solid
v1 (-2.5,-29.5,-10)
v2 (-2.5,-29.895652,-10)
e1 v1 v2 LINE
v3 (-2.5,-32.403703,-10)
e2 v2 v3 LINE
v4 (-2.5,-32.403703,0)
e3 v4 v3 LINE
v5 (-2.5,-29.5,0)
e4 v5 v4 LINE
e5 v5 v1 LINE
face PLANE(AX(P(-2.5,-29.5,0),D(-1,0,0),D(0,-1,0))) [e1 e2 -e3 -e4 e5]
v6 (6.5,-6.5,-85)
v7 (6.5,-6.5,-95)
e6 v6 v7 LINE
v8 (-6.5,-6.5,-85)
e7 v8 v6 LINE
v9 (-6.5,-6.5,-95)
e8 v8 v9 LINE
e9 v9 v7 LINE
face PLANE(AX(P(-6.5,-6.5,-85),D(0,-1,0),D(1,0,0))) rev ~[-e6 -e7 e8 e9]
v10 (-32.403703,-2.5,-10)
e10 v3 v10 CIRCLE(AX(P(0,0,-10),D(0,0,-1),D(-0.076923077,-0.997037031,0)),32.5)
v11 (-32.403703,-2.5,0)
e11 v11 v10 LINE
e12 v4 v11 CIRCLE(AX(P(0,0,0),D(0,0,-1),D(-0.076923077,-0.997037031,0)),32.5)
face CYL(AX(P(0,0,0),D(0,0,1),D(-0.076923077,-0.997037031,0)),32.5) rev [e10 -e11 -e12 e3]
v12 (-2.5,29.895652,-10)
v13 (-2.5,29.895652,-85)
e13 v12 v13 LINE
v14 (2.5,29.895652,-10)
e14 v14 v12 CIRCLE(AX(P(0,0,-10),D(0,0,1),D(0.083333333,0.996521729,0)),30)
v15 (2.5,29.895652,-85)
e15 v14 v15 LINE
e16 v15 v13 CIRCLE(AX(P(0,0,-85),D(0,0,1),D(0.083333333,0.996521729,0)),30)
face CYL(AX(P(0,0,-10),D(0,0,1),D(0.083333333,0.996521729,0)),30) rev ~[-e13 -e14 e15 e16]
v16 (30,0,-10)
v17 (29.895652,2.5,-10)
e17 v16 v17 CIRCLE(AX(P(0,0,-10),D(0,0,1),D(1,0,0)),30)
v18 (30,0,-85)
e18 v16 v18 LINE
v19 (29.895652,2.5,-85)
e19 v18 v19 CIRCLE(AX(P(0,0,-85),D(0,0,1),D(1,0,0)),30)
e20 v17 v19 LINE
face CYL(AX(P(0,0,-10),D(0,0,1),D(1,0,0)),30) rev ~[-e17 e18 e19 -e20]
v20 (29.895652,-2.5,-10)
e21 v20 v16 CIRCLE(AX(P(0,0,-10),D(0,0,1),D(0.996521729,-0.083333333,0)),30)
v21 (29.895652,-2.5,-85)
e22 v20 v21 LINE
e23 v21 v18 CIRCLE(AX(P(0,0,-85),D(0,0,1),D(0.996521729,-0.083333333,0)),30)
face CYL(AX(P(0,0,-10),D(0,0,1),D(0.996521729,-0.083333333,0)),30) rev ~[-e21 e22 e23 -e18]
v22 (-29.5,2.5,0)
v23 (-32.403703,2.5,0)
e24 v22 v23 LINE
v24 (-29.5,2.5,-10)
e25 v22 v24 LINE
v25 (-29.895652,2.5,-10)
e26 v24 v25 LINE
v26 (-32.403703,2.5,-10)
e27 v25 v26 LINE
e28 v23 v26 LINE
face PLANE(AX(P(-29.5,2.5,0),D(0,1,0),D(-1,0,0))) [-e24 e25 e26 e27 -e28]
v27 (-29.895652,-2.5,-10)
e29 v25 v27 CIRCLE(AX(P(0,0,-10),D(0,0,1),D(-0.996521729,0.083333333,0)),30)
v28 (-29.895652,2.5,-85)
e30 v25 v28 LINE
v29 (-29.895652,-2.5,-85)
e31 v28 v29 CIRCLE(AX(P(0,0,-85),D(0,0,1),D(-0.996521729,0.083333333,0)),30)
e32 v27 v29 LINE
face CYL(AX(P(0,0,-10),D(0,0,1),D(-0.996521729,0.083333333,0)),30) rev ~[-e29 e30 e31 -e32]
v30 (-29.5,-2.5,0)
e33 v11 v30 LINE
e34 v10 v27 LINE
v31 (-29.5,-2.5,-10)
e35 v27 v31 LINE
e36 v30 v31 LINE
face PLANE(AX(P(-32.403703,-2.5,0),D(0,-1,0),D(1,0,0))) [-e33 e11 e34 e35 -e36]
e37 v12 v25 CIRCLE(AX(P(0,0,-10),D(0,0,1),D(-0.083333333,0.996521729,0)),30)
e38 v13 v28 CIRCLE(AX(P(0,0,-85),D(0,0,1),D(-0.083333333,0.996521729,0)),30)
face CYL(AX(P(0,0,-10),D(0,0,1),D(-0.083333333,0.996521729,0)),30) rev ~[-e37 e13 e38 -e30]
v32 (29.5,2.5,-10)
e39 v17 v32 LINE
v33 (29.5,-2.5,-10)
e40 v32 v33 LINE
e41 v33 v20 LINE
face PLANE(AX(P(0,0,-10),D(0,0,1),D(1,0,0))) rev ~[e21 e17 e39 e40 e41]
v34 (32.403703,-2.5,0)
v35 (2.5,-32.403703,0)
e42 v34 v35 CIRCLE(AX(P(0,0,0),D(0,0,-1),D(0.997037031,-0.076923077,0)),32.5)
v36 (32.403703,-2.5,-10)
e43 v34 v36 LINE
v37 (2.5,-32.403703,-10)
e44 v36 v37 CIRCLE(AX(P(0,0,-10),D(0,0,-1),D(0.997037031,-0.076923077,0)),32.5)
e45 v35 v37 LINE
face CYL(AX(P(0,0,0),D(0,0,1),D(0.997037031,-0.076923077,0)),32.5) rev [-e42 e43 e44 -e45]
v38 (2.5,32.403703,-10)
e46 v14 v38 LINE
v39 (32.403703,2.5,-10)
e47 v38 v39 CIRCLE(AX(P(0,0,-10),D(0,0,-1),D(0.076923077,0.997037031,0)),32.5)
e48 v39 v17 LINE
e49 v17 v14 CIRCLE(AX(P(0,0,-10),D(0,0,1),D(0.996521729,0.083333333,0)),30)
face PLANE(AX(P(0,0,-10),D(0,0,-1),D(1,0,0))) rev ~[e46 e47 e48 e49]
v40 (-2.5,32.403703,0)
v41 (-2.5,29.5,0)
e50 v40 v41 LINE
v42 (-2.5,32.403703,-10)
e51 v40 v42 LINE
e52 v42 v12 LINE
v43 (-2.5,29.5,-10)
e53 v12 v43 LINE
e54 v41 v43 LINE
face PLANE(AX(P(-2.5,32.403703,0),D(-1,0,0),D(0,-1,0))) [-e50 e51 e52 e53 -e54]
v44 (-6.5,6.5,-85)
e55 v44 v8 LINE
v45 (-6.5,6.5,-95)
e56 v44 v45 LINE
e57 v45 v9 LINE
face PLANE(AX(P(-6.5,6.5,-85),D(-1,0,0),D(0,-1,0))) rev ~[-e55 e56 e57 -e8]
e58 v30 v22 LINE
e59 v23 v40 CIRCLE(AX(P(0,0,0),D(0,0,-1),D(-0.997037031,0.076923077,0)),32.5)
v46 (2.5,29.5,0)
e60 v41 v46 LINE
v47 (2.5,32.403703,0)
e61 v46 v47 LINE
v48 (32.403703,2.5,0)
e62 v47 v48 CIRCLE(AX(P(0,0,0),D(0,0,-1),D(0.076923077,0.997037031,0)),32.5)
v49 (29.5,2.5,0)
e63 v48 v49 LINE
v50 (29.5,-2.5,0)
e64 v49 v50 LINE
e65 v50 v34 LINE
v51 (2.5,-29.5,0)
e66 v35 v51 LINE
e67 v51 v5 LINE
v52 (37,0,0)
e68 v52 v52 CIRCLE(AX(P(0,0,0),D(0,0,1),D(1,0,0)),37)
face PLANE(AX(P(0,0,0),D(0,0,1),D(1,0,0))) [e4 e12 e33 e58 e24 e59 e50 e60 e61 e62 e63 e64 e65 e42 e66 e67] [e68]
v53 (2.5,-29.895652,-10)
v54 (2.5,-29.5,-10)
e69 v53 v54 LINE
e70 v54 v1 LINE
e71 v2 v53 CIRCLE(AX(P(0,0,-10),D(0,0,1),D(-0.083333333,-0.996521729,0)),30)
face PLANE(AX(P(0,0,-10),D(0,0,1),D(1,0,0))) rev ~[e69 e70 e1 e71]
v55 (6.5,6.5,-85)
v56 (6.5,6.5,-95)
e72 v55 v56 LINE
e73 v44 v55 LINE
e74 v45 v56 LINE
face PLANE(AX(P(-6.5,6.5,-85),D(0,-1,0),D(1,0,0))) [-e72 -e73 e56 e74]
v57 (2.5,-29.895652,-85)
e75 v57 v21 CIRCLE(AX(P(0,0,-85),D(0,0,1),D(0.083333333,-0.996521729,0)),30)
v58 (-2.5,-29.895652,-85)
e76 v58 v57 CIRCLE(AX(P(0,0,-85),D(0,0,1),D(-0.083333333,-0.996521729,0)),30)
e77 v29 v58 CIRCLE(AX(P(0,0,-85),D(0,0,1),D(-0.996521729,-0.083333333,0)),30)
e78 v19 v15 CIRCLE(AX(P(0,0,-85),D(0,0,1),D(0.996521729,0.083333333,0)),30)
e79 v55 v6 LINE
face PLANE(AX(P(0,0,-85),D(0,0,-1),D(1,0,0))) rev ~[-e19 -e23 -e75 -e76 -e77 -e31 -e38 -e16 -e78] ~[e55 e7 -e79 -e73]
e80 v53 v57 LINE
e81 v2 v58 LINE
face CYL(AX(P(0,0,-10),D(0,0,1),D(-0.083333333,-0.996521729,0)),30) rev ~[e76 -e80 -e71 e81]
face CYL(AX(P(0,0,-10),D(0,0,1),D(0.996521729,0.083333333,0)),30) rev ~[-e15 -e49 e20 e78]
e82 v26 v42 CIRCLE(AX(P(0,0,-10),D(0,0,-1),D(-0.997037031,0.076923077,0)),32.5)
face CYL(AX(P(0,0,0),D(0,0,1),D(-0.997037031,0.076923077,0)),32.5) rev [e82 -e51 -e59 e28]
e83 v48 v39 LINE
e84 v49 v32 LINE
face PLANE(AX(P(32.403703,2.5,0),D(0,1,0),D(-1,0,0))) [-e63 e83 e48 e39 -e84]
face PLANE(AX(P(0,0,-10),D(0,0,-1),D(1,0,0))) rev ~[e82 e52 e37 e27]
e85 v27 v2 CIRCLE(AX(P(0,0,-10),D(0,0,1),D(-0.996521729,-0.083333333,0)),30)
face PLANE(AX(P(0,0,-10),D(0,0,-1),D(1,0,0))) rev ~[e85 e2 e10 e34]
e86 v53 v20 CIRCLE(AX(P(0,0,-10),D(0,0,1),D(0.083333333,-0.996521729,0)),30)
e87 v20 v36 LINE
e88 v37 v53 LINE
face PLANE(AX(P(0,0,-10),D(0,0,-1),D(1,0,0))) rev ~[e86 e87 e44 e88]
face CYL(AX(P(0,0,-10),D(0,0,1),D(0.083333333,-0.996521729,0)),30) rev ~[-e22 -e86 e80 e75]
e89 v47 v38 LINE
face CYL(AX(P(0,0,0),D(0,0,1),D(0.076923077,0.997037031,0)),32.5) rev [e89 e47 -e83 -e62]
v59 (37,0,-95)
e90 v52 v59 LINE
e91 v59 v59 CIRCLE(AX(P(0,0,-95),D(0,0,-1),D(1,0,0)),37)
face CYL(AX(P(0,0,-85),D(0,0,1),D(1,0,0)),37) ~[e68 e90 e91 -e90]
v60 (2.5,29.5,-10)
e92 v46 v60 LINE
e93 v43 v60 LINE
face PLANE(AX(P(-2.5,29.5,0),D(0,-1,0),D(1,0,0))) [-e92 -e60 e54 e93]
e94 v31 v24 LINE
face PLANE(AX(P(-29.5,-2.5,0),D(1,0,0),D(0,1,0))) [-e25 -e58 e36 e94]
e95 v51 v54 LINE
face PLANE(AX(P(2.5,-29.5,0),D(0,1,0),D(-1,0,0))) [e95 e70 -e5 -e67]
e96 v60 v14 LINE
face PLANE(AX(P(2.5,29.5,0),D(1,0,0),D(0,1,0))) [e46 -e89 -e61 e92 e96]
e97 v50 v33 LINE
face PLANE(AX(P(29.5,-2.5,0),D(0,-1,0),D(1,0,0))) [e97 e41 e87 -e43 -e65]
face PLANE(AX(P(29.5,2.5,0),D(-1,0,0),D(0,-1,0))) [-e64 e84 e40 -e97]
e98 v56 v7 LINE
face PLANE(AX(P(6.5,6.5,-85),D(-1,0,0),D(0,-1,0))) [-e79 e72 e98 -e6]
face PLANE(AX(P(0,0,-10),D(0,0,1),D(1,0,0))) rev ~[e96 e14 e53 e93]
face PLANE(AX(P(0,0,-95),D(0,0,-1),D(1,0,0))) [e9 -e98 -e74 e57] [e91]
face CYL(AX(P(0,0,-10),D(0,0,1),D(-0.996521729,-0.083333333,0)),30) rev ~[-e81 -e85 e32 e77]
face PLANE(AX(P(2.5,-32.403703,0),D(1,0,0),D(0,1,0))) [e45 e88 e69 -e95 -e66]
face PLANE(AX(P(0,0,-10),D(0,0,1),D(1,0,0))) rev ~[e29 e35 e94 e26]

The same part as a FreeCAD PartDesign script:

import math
import FreeCAD as App
import Part
import Sketcher
Q = App.Units.Quantity


def add_polygon(sketch, points):
    """Adds a closed chain of lines whose ends are joined by coincident constraints."""
    first, n = sketch.GeometryCount, len(points)
    for a, b in zip(points, points[1:] + points[:1]):
        sketch.addGeometry(Part.LineSegment(App.Vector(*a, 0), App.Vector(*b, 0)), False)
    for i in range(n):
        sketch.addConstraint(Sketcher.Constraint("Coincident", first + i, 2, first + (i + 1) % n, 1))

doc = App.newDocument("Part")
body = doc.addObject("PartDesign::Body", "Body")

# Sketch on XY plane
sketch1 = doc.addObject("Sketcher::SketchObject", "Sketch")
body.addObject(sketch1)
sketch1.AttachmentSupport = (doc.XY_Plane, [""])
sketch1.MapMode = "FlatFace"
sketch1.addGeometry(Part.Circle(App.Vector(0, 0, 0), App.Vector(0, 0, 1), 37), False)
sketch1.addGeometry(Part.ArcOfCircle(Part.Circle(App.Vector(0, 0, 0), App.Vector(0, 0, 1), 32.5), math.radians(4.411726), math.radians(85.588274)), False)
sketch1.addGeometry(Part.LineSegment(App.Vector(32.403703, 2.5, 0), App.Vector(29.5, 2.5, 0)), False)
sketch1.addGeometry(Part.LineSegment(App.Vector(29.5, 2.5, 0), App.Vector(29.5, -2.5, 0)), False)
sketch1.addGeometry(Part.LineSegment(App.Vector(29.5, -2.5, 0), App.Vector(32.403703, -2.5, 0)), False)
sketch1.addGeometry(Part.ArcOfCircle(Part.Circle(App.Vector(0, 0, 0), App.Vector(0, 0, 1), 32.5), math.radians(-85.588274), math.radians(-4.411726)), False)
sketch1.addGeometry(Part.LineSegment(App.Vector(2.5, -32.403703, 0), App.Vector(2.5, -29.5, 0)), False)
sketch1.addGeometry(Part.LineSegment(App.Vector(2.5, -29.5, 0), App.Vector(-2.5, -29.5, 0)), False)
sketch1.addGeometry(Part.LineSegment(App.Vector(-2.5, -29.5, 0), App.Vector(-2.5, -32.403703, 0)), False)
sketch1.addGeometry(Part.ArcOfCircle(Part.Circle(App.Vector(0, 0, 0), App.Vector(0, 0, 1), 32.5), math.radians(-175.588274), math.radians(-94.411726)), False)
sketch1.addGeometry(Part.LineSegment(App.Vector(-32.403703, -2.5, 0), App.Vector(-29.5, -2.5, 0)), False)
sketch1.addGeometry(Part.LineSegment(App.Vector(-29.5, -2.5, 0), App.Vector(-29.5, 2.5, 0)), False)
sketch1.addGeometry(Part.LineSegment(App.Vector(-29.5, 2.5, 0), App.Vector(-32.403703, 2.5, 0)), False)
sketch1.addGeometry(Part.ArcOfCircle(Part.Circle(App.Vector(0, 0, 0), App.Vector(0, 0, 1), 32.5), math.radians(94.411726), math.radians(175.588274)), False)
sketch1.addGeometry(Part.LineSegment(App.Vector(-2.5, 32.403703, 0), App.Vector(-2.5, 29.5, 0)), False)
sketch1.addGeometry(Part.LineSegment(App.Vector(-2.5, 29.5, 0), App.Vector(2.5, 29.5, 0)), False)
sketch1.addGeometry(Part.LineSegment(App.Vector(2.5, 29.5, 0), App.Vector(2.5, 32.403703, 0)), False)
sketch1.addConstraint(Sketcher.Constraint("Coincident", 1, 1, 2, 1))
sketch1.addConstraint(Sketcher.Constraint("Coincident", 2, 2, 3, 1))
sketch1.addConstraint(Sketcher.Constraint("Coincident", 3, 2, 4, 1))
sketch1.addConstraint(Sketcher.Constraint("Coincident", 4, 2, 5, 2))
sketch1.addConstraint(Sketcher.Constraint("Coincident", 5, 1, 6, 1))
sketch1.addConstraint(Sketcher.Constraint("Coincident", 6, 2, 7, 1))
sketch1.addConstraint(Sketcher.Constraint("Coincident", 7, 2, 8, 1))
sketch1.addConstraint(Sketcher.Constraint("Coincident", 8, 2, 9, 2))
sketch1.addConstraint(Sketcher.Constraint("Coincident", 9, 1, 10, 1))
sketch1.addConstraint(Sketcher.Constraint("Coincident", 10, 2, 11, 1))
sketch1.addConstraint(Sketcher.Constraint("Coincident", 11, 2, 12, 1))
sketch1.addConstraint(Sketcher.Constraint("Coincident", 12, 2, 13, 2))
sketch1.addConstraint(Sketcher.Constraint("Coincident", 13, 1, 14, 1))
sketch1.addConstraint(Sketcher.Constraint("Coincident", 14, 2, 15, 1))
sketch1.addConstraint(Sketcher.Constraint("Coincident", 15, 2, 16, 1))
sketch1.addConstraint(Sketcher.Constraint("Coincident", 16, 2, 1, 2))
sketch1.addConstraint(Sketcher.Constraint("Horizontal", 2))
sketch1.addConstraint(Sketcher.Constraint("Vertical", 3))
sketch1.addConstraint(Sketcher.Constraint("Horizontal", 4))
sketch1.addConstraint(Sketcher.Constraint("Vertical", 6))
sketch1.addConstraint(Sketcher.Constraint("Horizontal", 7))
sketch1.addConstraint(Sketcher.Constraint("Vertical", 8))
sketch1.addConstraint(Sketcher.Constraint("Horizontal", 10))
sketch1.addConstraint(Sketcher.Constraint("Vertical", 11))
sketch1.addConstraint(Sketcher.Constraint("Horizontal", 12))
sketch1.addConstraint(Sketcher.Constraint("Vertical", 14))
sketch1.addConstraint(Sketcher.Constraint("Horizontal", 15))
sketch1.addConstraint(Sketcher.Constraint("Vertical", 16))
sketch1.addConstraint(Sketcher.Constraint("Coincident", 0, 3, -1, 1))
sketch1.addConstraint(Sketcher.Constraint("Coincident", 1, 3, -1, 1))
sketch1.addConstraint(Sketcher.Constraint("Coincident", 5, 3, -1, 1))
sketch1.addConstraint(Sketcher.Constraint("Coincident", 9, 3, -1, 1))
sketch1.addConstraint(Sketcher.Constraint("Coincident", 13, 3, -1, 1))
sketch1.addConstraint(Sketcher.Constraint("Equal", 1, 5))
sketch1.addConstraint(Sketcher.Constraint("Equal", 5, 9))
sketch1.addConstraint(Sketcher.Constraint("Equal", 9, 13))
sketch1.addConstraint(Sketcher.Constraint("Symmetric", 2, 2, 10, 2, -1, 1))
sketch1.addConstraint(Sketcher.Constraint("Symmetric", 6, 2, 14, 2, -1, 1))
sketch1.addConstraint(Sketcher.Constraint("Horizontal", 5, 1, 8, 2))
sketch1.addConstraint(Sketcher.Constraint("Horizontal", 4, 2, 9, 1))
sketch1.addConstraint(Sketcher.Constraint("Horizontal", 2, 2, 11, 2))
sketch1.addConstraint(Sketcher.Constraint("Horizontal", 13, 1, 16, 2))
sketch1.addConstraint(Sketcher.Constraint("Equal", 15, 3))
sketch1.addConstraint(Sketcher.Constraint("Equal", 12, 6))
sketch1.addConstraint(Sketcher.Constraint("Diameter", 0, Q("74 mm")))
sketch1.addConstraint(Sketcher.Constraint("Radius", 1, Q("32.5 mm")))
sketch1.addConstraint(Sketcher.Constraint("DistanceX", 7, 2, 7, 1, Q("5 mm")))
sketch1.addConstraint(Sketcher.Constraint("DistanceX", -1, 1, 2, 2, Q("29.5 mm")))
pad1 = doc.addObject("PartDesign::Pad", "Pad")
body.addObject(pad1)
pad1.Profile = sketch1
pad1.Length = 10
pad1.Reversed = True

# Sketch on XY plane
sketch2 = doc.addObject("Sketcher::SketchObject", "Sketch001")
body.addObject(sketch2)
sketch2.AttachmentSupport = (doc.XY_Plane, [""])
sketch2.MapMode = "FlatFace"
sketch2.AttachmentOffset = App.Placement(App.Vector(0, 0, -10), App.Rotation())
sketch2.addGeometry(Part.Circle(App.Vector(0, 0, 0), App.Vector(0, 0, 1), 37), False)
sketch2.addGeometry(Part.ArcOfCircle(Part.Circle(App.Vector(0, 0, 0), App.Vector(0, 0, 1), 30), math.radians(-4.780192), math.radians(0)), False)
sketch2.addGeometry(Part.ArcOfCircle(Part.Circle(App.Vector(0, 0, 0), App.Vector(0, 0, 1), 30), math.radians(0), math.radians(4.780192)), False)
sketch2.addGeometry(Part.ArcOfCircle(Part.Circle(App.Vector(0, 0, 0), App.Vector(0, 0, 1), 30), math.radians(4.780192), math.radians(85.219808)), False)
sketch2.addGeometry(Part.ArcOfCircle(Part.Circle(App.Vector(0, 0, 0), App.Vector(0, 0, 1), 30), math.radians(85.219808), math.radians(94.780192)), False)
sketch2.addGeometry(Part.ArcOfCircle(Part.Circle(App.Vector(0, 0, 0), App.Vector(0, 0, 1), 30), math.radians(94.780192), math.radians(175.219808)), False)
sketch2.addGeometry(Part.ArcOfCircle(Part.Circle(App.Vector(0, 0, 0), App.Vector(0, 0, 1), 30), math.radians(175.219808), math.radians(184.780192)), False)
sketch2.addGeometry(Part.ArcOfCircle(Part.Circle(App.Vector(0, 0, 0), App.Vector(0, 0, 1), 30), math.radians(-175.219808), math.radians(-94.780192)), False)
sketch2.addGeometry(Part.ArcOfCircle(Part.Circle(App.Vector(0, 0, 0), App.Vector(0, 0, 1), 30), math.radians(-94.780192), math.radians(-85.219808)), False)
sketch2.addGeometry(Part.ArcOfCircle(Part.Circle(App.Vector(0, 0, 0), App.Vector(0, 0, 1), 30), math.radians(-85.219808), math.radians(-4.780192)), False)
sketch2.addConstraint(Sketcher.Constraint("Tangent", 1, 2, 2, 1))
sketch2.addConstraint(Sketcher.Constraint("Tangent", 2, 2, 3, 1))
sketch2.addConstraint(Sketcher.Constraint("Tangent", 3, 2, 4, 1))
sketch2.addConstraint(Sketcher.Constraint("Tangent", 4, 2, 5, 1))
sketch2.addConstraint(Sketcher.Constraint("Tangent", 5, 2, 6, 1))
sketch2.addConstraint(Sketcher.Constraint("Tangent", 6, 2, 7, 1))
sketch2.addConstraint(Sketcher.Constraint("Tangent", 7, 2, 8, 1))
sketch2.addConstraint(Sketcher.Constraint("Tangent", 8, 2, 9, 1))
sketch2.addConstraint(Sketcher.Constraint("Tangent", 9, 2, 1, 1))
sketch2.addConstraint(Sketcher.Constraint("Coincident", 0, 3, -1, 1))
sketch2.addConstraint(Sketcher.Constraint("Coincident", 1, 3, -1, 1))
sketch2.addConstraint(Sketcher.Constraint("Coincident", 3, 3, -1, 1))
sketch2.addConstraint(Sketcher.Constraint("Coincident", 5, 3, -1, 1))
sketch2.addConstraint(Sketcher.Constraint("Coincident", 7, 3, -1, 1))
sketch2.addConstraint(Sketcher.Constraint("PointOnObject", 1, 2, -1))
sketch2.addConstraint(Sketcher.Constraint("Horizontal", 3, 2, 4, 2))
sketch2.addConstraint(Sketcher.Constraint("Horizontal", 2, 2, 5, 2))
sketch2.addConstraint(Sketcher.Constraint("Horizontal", 7, 2, 8, 2))
sketch2.addConstraint(Sketcher.Constraint("Horizontal", 6, 2, 9, 2))
sketch2.addConstraint(Sketcher.Constraint("Vertical", 5, 2, 6, 2))
sketch2.addConstraint(Sketcher.Constraint("Vertical", 4, 2, 7, 2))
sketch2.addConstraint(Sketcher.Constraint("Diameter", 0, Q("74 mm")))
sketch2.addConstraint(Sketcher.Constraint("Radius", 1, Q("30 mm")))
sketch2.addConstraint(Sketcher.Constraint("DistanceX", 4, 2, 3, 2, Q("5 mm")))
sketch2.addConstraint(Sketcher.Constraint("DistanceY", 6, 2, 5, 2, Q("5 mm")))
pad2 = doc.addObject("PartDesign::Pad", "Pad001")
body.addObject(pad2)
pad2.Profile = sketch2
pad2.Length = 75
pad2.Reversed = True

# Sketch on XY plane
sketch3 = doc.addObject("Sketcher::SketchObject", "Sketch002")
body.addObject(sketch3)
sketch3.AttachmentSupport = (doc.XY_Plane, [""])
sketch3.MapMode = "FlatFace"
sketch3.AttachmentOffset = App.Placement(App.Vector(0, 0, -85), App.Rotation())
sketch3.addGeometry(Part.Circle(App.Vector(0, 0, 0), App.Vector(0, 0, 1), 37), False)  # 0
add_polygon(sketch3, [(6.5, 6.5), (-6.5, 6.5), (-6.5, -6.5), (6.5, -6.5)])  # lines 1-4
sketch3.addConstraint(Sketcher.Constraint("Horizontal", 1))
sketch3.addConstraint(Sketcher.Constraint("Vertical", 2))
sketch3.addConstraint(Sketcher.Constraint("Horizontal", 3))
sketch3.addConstraint(Sketcher.Constraint("Vertical", 4))
sketch3.addConstraint(Sketcher.Constraint("Coincident", 0, 3, -1, 1))
sketch3.addConstraint(Sketcher.Constraint("Symmetric", 1, 2, 3, 2, -1, 1))
sketch3.addConstraint(Sketcher.Constraint("Equal", 3, 2))
sketch3.addConstraint(Sketcher.Constraint("Diameter", 0, Q("74 mm")))
sketch3.addConstraint(Sketcher.Constraint("DistanceX", 1, 2, 1, 1, Q("13 mm")))
pad3 = doc.addObject("PartDesign::Pad", "Pad002")
body.addObject(pad3)
pad3.Profile = sketch3
pad3.Length = 10
pad3.Reversed = True

doc.recompute()
